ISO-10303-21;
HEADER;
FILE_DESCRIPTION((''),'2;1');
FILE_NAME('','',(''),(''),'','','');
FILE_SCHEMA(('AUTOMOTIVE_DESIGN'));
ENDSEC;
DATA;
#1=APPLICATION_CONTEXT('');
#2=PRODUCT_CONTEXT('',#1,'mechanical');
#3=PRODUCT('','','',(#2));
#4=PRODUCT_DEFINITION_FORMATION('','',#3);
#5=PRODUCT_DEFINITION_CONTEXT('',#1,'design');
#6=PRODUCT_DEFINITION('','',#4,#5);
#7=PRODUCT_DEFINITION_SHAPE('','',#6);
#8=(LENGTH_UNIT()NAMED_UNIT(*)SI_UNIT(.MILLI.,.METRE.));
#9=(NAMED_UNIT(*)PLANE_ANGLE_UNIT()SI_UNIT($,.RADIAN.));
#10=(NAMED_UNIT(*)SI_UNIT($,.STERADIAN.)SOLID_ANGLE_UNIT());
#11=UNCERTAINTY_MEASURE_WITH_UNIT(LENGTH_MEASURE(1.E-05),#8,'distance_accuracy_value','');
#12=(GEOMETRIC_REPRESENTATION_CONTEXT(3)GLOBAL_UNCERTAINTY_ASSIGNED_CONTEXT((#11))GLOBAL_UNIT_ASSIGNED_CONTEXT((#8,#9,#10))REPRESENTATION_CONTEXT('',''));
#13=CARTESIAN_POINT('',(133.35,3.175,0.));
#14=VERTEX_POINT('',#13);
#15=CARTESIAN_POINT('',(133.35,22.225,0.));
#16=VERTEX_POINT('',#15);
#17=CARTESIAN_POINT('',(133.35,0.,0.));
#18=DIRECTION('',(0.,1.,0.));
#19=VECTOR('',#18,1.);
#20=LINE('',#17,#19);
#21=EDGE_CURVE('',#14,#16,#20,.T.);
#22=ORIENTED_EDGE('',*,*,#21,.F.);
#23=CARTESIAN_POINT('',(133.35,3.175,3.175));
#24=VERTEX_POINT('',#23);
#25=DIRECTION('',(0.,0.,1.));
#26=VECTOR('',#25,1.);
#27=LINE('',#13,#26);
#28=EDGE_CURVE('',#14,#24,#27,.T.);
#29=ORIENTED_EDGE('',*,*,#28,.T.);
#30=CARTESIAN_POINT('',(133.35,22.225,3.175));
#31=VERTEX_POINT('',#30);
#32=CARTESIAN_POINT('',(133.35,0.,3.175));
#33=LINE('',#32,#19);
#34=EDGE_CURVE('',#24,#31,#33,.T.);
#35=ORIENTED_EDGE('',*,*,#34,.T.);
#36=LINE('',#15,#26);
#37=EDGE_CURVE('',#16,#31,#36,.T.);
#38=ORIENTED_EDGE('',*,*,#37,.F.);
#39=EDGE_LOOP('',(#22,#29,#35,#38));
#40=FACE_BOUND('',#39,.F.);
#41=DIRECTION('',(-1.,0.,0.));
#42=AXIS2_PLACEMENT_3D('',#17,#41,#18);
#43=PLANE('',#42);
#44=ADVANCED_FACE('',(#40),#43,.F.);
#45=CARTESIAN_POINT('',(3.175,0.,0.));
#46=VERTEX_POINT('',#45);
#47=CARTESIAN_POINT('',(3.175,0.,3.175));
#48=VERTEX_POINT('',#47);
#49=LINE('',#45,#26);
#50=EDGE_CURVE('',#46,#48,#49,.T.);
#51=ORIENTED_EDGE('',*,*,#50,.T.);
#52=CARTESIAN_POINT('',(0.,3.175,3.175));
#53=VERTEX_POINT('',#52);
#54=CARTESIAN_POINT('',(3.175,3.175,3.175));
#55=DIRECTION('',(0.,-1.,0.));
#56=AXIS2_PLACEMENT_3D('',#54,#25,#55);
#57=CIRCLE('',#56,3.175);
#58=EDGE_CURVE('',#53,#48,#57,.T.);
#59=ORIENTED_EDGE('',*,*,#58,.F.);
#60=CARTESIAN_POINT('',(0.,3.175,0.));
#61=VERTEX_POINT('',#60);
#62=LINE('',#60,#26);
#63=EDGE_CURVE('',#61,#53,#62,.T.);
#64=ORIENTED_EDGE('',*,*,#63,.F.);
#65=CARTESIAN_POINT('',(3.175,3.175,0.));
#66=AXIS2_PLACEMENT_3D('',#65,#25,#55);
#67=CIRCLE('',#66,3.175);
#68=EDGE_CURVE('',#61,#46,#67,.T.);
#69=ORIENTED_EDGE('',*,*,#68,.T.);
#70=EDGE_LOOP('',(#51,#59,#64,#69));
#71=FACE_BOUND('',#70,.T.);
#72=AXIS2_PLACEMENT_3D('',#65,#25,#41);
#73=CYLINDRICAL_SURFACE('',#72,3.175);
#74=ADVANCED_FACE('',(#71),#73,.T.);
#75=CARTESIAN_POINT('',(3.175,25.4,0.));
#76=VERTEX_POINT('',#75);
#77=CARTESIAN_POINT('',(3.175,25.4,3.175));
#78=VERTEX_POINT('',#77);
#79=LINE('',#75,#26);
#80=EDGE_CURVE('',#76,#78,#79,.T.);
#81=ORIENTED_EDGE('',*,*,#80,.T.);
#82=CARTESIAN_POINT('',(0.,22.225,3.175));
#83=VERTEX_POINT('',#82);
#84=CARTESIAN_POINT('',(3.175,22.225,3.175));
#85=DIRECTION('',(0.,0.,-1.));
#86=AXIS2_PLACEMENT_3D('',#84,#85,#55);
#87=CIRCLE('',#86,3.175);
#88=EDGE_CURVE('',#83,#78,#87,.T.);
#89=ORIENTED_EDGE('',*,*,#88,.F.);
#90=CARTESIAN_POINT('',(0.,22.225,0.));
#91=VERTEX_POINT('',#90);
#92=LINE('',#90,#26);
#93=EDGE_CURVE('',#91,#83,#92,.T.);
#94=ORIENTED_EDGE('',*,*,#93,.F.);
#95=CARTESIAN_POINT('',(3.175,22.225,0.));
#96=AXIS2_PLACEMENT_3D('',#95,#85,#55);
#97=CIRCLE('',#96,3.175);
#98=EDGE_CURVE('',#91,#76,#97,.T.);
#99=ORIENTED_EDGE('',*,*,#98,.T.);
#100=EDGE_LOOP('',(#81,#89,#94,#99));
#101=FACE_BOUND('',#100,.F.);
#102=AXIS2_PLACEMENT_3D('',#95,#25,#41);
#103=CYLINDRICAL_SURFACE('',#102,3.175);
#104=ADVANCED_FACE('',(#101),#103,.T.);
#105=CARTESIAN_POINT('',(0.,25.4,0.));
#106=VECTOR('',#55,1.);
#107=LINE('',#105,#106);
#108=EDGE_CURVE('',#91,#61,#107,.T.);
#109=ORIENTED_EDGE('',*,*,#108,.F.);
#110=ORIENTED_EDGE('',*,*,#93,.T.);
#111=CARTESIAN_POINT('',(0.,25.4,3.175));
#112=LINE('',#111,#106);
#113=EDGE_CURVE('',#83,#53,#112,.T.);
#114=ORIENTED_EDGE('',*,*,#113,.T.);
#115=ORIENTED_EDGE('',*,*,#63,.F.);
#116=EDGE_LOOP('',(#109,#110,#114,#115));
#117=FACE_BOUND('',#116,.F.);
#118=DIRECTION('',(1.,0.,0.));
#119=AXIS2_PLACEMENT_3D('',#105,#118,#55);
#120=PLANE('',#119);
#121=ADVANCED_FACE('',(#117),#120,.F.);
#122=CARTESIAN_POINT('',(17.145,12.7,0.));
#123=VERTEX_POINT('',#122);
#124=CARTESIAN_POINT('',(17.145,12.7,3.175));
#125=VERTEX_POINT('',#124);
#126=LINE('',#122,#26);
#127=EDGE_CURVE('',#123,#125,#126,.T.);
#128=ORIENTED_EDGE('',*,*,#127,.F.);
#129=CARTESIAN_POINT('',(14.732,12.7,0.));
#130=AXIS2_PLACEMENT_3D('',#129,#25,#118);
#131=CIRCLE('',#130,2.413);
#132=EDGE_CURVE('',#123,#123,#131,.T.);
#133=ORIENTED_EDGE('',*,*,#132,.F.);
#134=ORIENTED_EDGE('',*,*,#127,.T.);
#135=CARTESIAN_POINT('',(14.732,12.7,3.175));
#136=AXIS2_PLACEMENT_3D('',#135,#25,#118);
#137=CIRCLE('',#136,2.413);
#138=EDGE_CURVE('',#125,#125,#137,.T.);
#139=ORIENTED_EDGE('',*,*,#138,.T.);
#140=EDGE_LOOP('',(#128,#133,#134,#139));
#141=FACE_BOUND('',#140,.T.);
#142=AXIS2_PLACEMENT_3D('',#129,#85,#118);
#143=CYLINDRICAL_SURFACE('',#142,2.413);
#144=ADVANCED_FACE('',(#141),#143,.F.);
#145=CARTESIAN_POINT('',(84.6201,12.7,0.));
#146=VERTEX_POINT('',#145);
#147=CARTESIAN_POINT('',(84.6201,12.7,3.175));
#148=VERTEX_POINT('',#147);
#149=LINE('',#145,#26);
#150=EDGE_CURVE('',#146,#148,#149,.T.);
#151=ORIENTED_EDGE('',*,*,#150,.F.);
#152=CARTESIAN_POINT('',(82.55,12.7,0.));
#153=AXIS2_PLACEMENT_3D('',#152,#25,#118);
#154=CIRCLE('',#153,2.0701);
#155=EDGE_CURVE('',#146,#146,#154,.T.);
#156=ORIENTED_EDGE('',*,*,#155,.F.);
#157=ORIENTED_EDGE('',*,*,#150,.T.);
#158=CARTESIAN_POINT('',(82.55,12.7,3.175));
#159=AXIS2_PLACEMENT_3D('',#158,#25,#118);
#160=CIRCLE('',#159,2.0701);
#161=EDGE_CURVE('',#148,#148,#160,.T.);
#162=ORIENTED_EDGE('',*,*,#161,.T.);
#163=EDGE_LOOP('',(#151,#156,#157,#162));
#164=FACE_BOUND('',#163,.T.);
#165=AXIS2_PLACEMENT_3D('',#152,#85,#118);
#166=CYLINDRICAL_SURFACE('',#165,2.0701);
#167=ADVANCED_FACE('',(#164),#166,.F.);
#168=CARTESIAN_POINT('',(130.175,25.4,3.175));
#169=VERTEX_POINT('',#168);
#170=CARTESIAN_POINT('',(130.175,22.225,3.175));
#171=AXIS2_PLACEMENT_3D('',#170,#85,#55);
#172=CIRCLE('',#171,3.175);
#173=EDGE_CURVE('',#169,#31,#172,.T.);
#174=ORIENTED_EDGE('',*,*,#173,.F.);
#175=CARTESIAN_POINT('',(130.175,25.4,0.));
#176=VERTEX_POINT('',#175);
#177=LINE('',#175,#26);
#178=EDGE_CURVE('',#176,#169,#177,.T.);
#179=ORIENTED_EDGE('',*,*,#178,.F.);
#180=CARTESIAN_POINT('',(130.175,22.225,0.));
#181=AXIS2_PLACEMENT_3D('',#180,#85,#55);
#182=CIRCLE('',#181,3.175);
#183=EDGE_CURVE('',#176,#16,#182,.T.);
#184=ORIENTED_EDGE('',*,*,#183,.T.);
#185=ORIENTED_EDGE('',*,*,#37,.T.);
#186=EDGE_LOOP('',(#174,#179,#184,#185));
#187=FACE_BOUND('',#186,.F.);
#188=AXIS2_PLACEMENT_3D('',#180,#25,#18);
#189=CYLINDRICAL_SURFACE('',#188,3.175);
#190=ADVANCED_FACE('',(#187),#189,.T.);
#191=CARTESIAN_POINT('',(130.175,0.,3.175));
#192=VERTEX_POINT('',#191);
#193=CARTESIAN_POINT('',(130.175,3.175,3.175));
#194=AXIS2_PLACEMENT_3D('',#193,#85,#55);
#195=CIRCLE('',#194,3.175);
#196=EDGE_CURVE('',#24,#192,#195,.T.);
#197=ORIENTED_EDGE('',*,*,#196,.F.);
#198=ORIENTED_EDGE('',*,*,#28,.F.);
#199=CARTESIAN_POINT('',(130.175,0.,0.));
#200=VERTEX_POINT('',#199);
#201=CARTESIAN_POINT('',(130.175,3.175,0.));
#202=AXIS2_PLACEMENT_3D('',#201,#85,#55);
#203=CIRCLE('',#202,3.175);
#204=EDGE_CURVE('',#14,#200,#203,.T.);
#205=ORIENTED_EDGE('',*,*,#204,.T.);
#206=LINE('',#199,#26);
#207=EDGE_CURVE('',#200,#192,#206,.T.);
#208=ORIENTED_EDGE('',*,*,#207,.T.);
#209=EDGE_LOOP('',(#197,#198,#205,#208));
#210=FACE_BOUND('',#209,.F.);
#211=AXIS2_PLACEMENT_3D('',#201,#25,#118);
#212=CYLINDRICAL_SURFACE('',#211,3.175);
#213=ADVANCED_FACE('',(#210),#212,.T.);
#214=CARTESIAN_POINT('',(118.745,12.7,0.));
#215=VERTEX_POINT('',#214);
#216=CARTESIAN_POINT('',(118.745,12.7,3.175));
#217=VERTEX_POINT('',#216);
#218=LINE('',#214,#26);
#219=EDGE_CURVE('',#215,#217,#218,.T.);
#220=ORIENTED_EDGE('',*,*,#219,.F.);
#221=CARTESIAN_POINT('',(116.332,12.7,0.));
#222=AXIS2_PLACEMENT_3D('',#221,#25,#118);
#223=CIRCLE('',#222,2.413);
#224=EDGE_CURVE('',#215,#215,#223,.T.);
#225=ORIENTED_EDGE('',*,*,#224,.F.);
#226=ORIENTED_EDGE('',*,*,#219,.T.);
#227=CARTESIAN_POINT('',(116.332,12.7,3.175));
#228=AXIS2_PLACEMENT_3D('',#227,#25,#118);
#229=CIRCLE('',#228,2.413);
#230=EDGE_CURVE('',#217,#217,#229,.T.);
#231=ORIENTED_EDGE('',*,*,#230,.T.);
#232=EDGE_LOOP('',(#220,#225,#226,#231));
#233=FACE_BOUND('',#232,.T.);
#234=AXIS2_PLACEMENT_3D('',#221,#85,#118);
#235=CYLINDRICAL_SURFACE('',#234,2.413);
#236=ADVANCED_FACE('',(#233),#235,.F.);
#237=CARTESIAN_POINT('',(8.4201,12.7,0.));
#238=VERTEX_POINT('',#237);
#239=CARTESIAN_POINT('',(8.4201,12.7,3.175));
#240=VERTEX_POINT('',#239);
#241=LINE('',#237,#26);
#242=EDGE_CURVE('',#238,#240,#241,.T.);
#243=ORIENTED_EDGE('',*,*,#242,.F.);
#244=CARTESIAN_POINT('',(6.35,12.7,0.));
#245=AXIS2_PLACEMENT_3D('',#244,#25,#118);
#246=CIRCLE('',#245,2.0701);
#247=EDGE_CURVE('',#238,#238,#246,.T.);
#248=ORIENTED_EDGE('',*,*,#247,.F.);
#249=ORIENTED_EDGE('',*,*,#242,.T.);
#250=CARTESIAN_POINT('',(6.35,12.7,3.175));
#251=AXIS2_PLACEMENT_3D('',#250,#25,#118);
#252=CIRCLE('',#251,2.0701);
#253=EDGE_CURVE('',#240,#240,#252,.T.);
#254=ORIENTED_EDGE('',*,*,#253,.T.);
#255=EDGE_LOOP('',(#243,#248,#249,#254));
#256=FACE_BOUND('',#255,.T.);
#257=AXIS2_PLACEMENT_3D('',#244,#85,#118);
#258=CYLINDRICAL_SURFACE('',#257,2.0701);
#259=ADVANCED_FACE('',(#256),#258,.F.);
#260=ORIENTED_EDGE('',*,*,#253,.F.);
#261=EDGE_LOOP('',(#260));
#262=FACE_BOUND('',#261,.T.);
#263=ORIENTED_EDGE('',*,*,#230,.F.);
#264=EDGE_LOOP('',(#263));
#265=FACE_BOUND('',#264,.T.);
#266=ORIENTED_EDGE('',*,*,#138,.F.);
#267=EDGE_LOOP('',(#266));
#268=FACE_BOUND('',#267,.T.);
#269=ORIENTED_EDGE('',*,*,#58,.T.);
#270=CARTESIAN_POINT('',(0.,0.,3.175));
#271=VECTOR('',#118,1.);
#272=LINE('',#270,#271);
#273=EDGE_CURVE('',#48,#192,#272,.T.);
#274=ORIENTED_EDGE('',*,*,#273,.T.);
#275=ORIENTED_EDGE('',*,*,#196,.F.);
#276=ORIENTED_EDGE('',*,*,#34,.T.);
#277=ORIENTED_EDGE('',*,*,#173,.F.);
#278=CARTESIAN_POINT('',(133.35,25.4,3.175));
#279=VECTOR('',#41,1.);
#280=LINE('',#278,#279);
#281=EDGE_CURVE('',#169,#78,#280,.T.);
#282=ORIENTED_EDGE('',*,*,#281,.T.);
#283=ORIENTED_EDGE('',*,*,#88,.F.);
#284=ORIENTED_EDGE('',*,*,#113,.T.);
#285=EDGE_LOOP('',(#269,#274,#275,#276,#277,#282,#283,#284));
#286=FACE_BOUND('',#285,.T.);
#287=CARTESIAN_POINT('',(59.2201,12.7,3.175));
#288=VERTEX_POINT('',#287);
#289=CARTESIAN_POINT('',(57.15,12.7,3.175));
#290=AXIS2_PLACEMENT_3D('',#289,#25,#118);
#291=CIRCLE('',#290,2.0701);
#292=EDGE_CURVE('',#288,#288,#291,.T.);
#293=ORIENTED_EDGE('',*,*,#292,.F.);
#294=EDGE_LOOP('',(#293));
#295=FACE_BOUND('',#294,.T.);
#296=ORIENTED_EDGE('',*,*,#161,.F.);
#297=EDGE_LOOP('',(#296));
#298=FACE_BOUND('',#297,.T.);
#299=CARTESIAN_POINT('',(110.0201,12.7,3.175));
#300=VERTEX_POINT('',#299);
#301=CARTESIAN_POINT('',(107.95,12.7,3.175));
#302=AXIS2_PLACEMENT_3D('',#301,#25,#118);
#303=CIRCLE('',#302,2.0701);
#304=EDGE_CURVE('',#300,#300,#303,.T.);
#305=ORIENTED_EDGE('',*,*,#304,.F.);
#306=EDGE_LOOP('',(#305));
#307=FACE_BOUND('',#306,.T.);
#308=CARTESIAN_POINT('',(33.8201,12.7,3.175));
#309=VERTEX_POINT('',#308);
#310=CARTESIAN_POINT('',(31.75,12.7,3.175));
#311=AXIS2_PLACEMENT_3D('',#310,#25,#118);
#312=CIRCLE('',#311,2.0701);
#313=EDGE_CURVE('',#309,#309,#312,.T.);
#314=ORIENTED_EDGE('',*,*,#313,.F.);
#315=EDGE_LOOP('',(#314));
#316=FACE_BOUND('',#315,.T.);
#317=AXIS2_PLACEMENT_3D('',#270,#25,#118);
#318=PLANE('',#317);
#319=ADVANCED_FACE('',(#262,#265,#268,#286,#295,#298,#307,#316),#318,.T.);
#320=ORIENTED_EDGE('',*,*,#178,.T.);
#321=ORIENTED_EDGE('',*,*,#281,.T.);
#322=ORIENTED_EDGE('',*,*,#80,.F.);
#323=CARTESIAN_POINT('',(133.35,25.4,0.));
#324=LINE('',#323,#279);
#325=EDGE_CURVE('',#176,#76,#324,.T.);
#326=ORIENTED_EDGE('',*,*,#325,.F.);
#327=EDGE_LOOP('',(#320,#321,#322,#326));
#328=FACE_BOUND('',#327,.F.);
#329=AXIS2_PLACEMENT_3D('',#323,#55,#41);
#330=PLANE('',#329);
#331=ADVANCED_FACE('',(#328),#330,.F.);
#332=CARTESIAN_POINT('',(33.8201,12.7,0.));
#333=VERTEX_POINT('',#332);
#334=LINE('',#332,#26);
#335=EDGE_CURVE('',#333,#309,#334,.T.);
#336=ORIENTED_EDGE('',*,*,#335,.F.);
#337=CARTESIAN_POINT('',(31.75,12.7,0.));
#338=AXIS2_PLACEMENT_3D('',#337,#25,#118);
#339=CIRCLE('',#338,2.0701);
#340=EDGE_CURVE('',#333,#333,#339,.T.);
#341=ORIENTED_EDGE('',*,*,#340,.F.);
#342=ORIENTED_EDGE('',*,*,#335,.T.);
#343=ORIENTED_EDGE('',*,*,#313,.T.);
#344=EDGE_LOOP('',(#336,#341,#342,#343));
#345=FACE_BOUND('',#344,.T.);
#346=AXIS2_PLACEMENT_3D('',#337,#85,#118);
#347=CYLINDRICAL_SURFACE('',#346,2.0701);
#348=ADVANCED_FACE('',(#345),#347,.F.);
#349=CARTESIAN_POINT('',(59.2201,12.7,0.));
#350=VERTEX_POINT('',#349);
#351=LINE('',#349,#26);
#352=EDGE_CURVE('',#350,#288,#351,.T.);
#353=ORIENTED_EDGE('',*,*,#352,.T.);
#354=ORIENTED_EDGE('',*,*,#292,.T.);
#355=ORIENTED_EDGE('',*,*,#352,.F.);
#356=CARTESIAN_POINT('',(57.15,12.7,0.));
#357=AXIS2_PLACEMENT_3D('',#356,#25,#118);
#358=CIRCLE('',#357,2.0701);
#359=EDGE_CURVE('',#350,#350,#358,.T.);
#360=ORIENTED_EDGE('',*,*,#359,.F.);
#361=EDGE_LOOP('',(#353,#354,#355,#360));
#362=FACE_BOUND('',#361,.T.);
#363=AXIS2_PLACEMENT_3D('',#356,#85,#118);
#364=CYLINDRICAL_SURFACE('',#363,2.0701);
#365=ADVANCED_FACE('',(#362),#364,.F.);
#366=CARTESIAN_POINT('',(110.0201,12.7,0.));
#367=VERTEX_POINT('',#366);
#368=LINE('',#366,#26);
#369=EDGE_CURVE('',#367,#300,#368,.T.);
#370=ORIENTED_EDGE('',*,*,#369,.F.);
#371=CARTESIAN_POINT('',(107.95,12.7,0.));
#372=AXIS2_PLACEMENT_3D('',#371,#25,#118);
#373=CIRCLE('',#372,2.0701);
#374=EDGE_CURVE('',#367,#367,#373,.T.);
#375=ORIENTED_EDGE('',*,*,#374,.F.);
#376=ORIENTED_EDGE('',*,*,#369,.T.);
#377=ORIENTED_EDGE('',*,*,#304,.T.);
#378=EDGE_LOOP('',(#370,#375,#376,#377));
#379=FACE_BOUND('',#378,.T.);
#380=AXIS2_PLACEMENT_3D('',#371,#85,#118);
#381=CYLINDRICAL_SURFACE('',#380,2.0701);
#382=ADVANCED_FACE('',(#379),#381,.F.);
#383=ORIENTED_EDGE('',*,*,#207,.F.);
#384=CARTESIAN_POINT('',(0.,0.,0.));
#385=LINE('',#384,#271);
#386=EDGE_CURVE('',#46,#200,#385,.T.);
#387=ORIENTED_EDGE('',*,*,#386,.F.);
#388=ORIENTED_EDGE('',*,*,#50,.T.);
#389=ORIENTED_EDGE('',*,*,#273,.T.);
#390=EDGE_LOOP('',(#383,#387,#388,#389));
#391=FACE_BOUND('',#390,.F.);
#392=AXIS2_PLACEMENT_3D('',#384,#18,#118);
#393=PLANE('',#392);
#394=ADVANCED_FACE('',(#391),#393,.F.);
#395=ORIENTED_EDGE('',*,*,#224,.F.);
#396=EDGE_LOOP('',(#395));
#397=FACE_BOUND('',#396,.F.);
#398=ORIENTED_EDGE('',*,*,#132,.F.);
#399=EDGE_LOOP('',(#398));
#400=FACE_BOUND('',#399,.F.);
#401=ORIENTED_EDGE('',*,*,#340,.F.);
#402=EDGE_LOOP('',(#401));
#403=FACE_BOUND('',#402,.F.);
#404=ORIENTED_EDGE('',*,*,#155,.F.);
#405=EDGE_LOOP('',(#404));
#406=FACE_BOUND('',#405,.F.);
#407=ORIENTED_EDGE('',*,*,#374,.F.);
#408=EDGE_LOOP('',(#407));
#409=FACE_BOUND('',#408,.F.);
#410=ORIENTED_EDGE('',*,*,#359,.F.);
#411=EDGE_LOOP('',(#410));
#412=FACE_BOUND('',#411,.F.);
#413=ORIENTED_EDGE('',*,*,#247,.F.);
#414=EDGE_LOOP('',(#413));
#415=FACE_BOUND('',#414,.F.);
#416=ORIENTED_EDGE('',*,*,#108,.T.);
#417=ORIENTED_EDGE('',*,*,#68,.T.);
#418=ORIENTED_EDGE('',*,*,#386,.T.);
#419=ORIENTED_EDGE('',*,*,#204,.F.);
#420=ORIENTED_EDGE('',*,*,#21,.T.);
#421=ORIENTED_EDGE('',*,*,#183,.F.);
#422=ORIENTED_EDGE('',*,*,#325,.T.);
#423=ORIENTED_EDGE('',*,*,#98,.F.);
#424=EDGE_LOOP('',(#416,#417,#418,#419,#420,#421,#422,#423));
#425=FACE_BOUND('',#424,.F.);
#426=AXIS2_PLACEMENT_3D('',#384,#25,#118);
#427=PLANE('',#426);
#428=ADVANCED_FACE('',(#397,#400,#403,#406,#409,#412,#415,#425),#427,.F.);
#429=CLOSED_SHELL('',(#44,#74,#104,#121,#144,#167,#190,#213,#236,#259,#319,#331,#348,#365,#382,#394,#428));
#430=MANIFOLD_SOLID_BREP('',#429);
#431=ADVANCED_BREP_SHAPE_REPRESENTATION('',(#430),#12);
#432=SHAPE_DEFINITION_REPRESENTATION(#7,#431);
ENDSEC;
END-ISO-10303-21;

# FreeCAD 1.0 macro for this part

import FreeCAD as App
import Part
import Sketcher
from FreeCAD import Vector
Q = App.Units.Quantity


def edges_at(feature, points):
    """Names of the edges that pass closest to the given points."""
    edges = feature.Shape.Edges
    near = lambda p: min(range(len(edges)), key=lambda i: edges[i].distToShape(Part.Vertex(*p))[0])
    return sorted({f"Edge{near(p) + 1}" for p in points})


def add_polygon(sketch, points):
    """Adds a closed chain of lines whose ends are joined by coincident constraints."""
    first, n = sketch.GeometryCount, len(points)
    for a, b in zip(points, points[1:] + points[:1]):
        sketch.addGeometry(Part.LineSegment(App.Vector(*a, 0), App.Vector(*b, 0)), False)
    for i in range(n):
        sketch.addConstraint(Sketcher.Constraint("Coincident", first + i, 2, first + (i + 1) % n, 1))

doc = App.newDocument("Part")
body = doc.addObject("PartDesign::Body", "Body")

sketch1 = body.newObject("Sketcher::SketchObject", "Sketch")
sketch1.AttachmentSupport = (doc.getObject("XY_Plane"), [""])
sketch1.MapMode = "FlatFace"
add_polygon(sketch1, [(0, 25.4), (0, 0), (133.3, 0), (133.3, 25.4)])
sketch1.addGeometry(Part.Circle(Vector(6.3, 12.7, 0), Vector(0, 0, 1), 2.1), False)
sketch1.addGeometry(Part.Circle(Vector(14.7, 12.7, 0), Vector(0, 0, 1), 2.4), False)
sketch1.addGeometry(Part.Circle(Vector(31.8, 12.7, 0), Vector(0, 0, 1), 2.1), False)
sketch1.addGeometry(Part.Circle(Vector(57.1, 12.7, 0), Vector(0, 0, 1), 2.1), False)
sketch1.addGeometry(Part.Circle(Vector(82.5, 12.7, 0), Vector(0, 0, 1), 2.1), False)
sketch1.addGeometry(Part.Circle(Vector(108, 12.7, 0), Vector(0, 0, 1), 2.1), False)
sketch1.addGeometry(Part.Circle(Vector(116.3, 12.7, 0), Vector(0, 0, 1), 2.4), False)
sketch1.addConstraint([
    Sketcher.Constraint("Vertical", 0),
    Sketcher.Constraint("Horizontal", 1),
    Sketcher.Constraint("Vertical", 2),
    Sketcher.Constraint("Horizontal", 3),
    Sketcher.Constraint("Coincident", 0, 2, -1, 1),
    Sketcher.Constraint("Equal", 4, 6),
    Sketcher.Constraint("Equal", 6, 7),
    Sketcher.Constraint("Equal", 7, 8),
    Sketcher.Constraint("Equal", 8, 9),
    Sketcher.Constraint("Equal", 5, 10),
    Sketcher.Constraint("Horizontal", 4, 3, 5, 3),
    Sketcher.Constraint("Horizontal", 5, 3, 6, 3),
    Sketcher.Constraint("Horizontal", 6, 3, 7, 3),
    Sketcher.Constraint("Horizontal", 7, 3, 8, 3),
    Sketcher.Constraint("Horizontal", 8, 3, 9, 3),
    Sketcher.Constraint("Horizontal", 9, 3, 10, 3),
    Sketcher.Constraint("Diameter", 5, Q("0.19 in")),
    Sketcher.Constraint("DistanceY", 0, 2, 0, 1, Q("1 in")),
    Sketcher.Constraint("Diameter", 4, Q("0.163 in")),
    Sketcher.Constraint("DistanceX", 4, 3, 6, 3, Q("1 in")),
    Sketcher.Constraint("DistanceX", 6, 3, 7, 3, Q("1 in")),
    Sketcher.Constraint("DistanceX", 7, 3, 8, 3, Q("1 in")),
    Sketcher.Constraint("DistanceX", 8, 3, 9, 3, Q("1 in")),
    Sketcher.Constraint("DistanceX", 5, 3, 10, 3, Q("4 in")),
    Sketcher.Constraint("DistanceX", 9, 3, 1, 2, Q("1 in")),
    Sketcher.Constraint("DistanceX", 1, 1, 1, 2, Q("5.25 in")),
    Sketcher.Constraint("DistanceY", -1, 1, 4, 3, Q("0.5 in")),
    Sketcher.Constraint("DistanceX", 4, 3, 5, 3, Q("0.33 in")),
])
pad1 = body.newObject("PartDesign::Pad", "Pad")
pad1.Profile = sketch1
pad1.Length = Q("0.125 in")
doc.recompute()

fillet = body.newObject("PartDesign::Fillet", "Fillet")
fillet.Base = (pad1, edges_at(pad1, [
    (0, 25.4, 1.587),
    (133.35, 25.4, 1.587),
    (133.35, 0, 1.587),
    (0, 0, 1.587),
]))
fillet.Radius = Q("0.125 in")

doc.recompute()
